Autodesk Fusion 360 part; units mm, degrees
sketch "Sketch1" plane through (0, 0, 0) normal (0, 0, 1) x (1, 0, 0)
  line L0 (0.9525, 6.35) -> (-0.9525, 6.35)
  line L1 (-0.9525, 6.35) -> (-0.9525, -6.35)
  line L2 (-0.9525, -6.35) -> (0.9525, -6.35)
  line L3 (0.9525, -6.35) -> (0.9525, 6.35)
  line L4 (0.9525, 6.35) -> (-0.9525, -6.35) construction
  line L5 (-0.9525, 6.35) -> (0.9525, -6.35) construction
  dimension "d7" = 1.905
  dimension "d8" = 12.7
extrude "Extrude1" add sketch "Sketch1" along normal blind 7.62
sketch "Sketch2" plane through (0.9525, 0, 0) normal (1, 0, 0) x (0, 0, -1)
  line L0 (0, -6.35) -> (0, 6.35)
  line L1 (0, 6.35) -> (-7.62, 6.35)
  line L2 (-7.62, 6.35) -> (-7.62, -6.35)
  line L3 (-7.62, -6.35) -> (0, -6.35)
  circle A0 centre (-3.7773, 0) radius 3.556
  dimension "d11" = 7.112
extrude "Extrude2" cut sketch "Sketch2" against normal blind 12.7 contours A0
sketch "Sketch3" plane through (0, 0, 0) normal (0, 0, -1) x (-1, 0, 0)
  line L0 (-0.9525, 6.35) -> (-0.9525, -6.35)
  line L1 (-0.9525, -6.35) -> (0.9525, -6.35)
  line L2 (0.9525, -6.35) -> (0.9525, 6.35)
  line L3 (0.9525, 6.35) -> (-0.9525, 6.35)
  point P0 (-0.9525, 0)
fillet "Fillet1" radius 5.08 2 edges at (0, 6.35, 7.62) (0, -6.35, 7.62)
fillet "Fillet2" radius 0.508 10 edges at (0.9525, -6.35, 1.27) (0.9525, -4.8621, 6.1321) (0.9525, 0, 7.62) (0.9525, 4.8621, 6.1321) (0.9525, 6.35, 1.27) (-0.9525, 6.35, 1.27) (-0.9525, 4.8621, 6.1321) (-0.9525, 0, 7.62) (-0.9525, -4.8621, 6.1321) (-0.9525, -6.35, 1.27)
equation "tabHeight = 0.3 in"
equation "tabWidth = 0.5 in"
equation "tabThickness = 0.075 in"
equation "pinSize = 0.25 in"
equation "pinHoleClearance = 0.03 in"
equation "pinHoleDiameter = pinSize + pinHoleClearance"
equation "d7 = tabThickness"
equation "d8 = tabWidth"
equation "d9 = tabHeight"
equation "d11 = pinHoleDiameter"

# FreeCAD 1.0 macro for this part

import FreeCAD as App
import Part
import Sketcher
from FreeCAD import Vector
Q = App.Units.Quantity


def edges_at(feature, points):
    """Names of the edges that pass closest to the given points."""
    edges = feature.Shape.Edges
    near = lambda p: min(range(len(edges)), key=lambda i: edges[i].distToShape(Part.Vertex(*p))[0])
    return sorted({f"Edge{near(p) + 1}" for p in points})


def add_polygon(sketch, points):
    """Adds a closed chain of lines whose ends are joined by coincident constraints."""
    first, n = sketch.GeometryCount, len(points)
    for a, b in zip(points, points[1:] + points[:1]):
        sketch.addGeometry(Part.LineSegment(App.Vector(*a, 0), App.Vector(*b, 0)), False)
    for i in range(n):
        sketch.addConstraint(Sketcher.Constraint("Coincident", first + i, 2, first + (i + 1) % n, 1))

doc = App.newDocument("Part")
body = doc.addObject("PartDesign::Body", "Body")

# Sketch on XY plane
sketch1 = doc.addObject("Sketcher::SketchObject", "Sketch")
body.addObject(sketch1)
sketch1.AttachmentSupport = (doc.XY_Plane, [""])
sketch1.MapMode = "FlatFace"
add_polygon(sketch1, [(0.9525, -6.35), (0.9525, 6.35), (-0.9525, 6.35), (-0.9525, -6.35)])  # lines 0-3
sketch1.addConstraint([
    Sketcher.Constraint("Vertical", 0),
    Sketcher.Constraint("Horizontal", 1),
    Sketcher.Constraint("Vertical", 2),
    Sketcher.Constraint("Horizontal", 3),
    Sketcher.Constraint("Symmetric", 0, 2, 2, 2, -1, 1),
    Sketcher.Constraint("DistanceY", 0, 1, 0, 2, Q("0.5 in")),
    Sketcher.Constraint("DistanceX", 1, 2, 1, 1, Q("0.075 in")),
])
pad1 = doc.addObject("PartDesign::Pad", "Pad")
body.addObject(pad1)
pad1.Profile = sketch1
pad1.Length = Q("0.3 in")

# Sketch on YZ plane
sketch2 = doc.addObject("Sketcher::SketchObject", "Sketch001")
body.addObject(sketch2)
sketch2.AttachmentSupport = (doc.YZ_Plane, [""])
sketch2.MapMode = "FlatFace"
sketch2.AttachmentOffset = App.Placement(Vector(0, 0, 0.0375 * 25.4), App.Rotation())
sketch2.addGeometry(Part.Circle(Vector(0, 3.7773, 0), Vector(0, 0, 1), 3.556), False)
sketch2.addConstraint([
    Sketcher.Constraint("PointOnObject", 0, 3, -2),
    Sketcher.Constraint("Diameter", 0, Q("0.28 in")),
    Sketcher.Constraint("DistanceY", -1, 1, 0, 3, 3.7773),
])
pocket1 = doc.addObject("PartDesign::Pocket", "Pocket")
body.addObject(pocket1)
pocket1.Profile = sketch2
pocket1.Length = Q("0.5 in")
doc.recompute()

fillet = doc.addObject("PartDesign::Fillet", "Fillet")
body.addObject(fillet)
fillet.Base = (pocket1, edges_at(pocket1, [(0, 6.35, 7.62), (0, -6.35, 7.62)]))
fillet.Radius = Q("0.2 in")
doc.recompute()

fillet2 = doc.addObject("PartDesign::Fillet", "Fillet001")
body.addObject(fillet2)
fillet2.Base = (fillet, edges_at(fillet, [
    (0.953, -6.35, 1.27),
    (0.953, -4.862, 6.132),
    (0.953, 0, 7.62),
    (0.953, 4.862, 6.132),
    (0.953, 6.35, 1.27),
    (-0.953, 6.35, 1.27),
    (-0.953, 4.862, 6.132),
    (-0.953, 0, 7.62),
    (-0.953, -4.862, 6.132),
    (-0.953, -6.35, 1.27),
]))
fillet2.Radius = Q("0.02 in")

doc.recompute()
